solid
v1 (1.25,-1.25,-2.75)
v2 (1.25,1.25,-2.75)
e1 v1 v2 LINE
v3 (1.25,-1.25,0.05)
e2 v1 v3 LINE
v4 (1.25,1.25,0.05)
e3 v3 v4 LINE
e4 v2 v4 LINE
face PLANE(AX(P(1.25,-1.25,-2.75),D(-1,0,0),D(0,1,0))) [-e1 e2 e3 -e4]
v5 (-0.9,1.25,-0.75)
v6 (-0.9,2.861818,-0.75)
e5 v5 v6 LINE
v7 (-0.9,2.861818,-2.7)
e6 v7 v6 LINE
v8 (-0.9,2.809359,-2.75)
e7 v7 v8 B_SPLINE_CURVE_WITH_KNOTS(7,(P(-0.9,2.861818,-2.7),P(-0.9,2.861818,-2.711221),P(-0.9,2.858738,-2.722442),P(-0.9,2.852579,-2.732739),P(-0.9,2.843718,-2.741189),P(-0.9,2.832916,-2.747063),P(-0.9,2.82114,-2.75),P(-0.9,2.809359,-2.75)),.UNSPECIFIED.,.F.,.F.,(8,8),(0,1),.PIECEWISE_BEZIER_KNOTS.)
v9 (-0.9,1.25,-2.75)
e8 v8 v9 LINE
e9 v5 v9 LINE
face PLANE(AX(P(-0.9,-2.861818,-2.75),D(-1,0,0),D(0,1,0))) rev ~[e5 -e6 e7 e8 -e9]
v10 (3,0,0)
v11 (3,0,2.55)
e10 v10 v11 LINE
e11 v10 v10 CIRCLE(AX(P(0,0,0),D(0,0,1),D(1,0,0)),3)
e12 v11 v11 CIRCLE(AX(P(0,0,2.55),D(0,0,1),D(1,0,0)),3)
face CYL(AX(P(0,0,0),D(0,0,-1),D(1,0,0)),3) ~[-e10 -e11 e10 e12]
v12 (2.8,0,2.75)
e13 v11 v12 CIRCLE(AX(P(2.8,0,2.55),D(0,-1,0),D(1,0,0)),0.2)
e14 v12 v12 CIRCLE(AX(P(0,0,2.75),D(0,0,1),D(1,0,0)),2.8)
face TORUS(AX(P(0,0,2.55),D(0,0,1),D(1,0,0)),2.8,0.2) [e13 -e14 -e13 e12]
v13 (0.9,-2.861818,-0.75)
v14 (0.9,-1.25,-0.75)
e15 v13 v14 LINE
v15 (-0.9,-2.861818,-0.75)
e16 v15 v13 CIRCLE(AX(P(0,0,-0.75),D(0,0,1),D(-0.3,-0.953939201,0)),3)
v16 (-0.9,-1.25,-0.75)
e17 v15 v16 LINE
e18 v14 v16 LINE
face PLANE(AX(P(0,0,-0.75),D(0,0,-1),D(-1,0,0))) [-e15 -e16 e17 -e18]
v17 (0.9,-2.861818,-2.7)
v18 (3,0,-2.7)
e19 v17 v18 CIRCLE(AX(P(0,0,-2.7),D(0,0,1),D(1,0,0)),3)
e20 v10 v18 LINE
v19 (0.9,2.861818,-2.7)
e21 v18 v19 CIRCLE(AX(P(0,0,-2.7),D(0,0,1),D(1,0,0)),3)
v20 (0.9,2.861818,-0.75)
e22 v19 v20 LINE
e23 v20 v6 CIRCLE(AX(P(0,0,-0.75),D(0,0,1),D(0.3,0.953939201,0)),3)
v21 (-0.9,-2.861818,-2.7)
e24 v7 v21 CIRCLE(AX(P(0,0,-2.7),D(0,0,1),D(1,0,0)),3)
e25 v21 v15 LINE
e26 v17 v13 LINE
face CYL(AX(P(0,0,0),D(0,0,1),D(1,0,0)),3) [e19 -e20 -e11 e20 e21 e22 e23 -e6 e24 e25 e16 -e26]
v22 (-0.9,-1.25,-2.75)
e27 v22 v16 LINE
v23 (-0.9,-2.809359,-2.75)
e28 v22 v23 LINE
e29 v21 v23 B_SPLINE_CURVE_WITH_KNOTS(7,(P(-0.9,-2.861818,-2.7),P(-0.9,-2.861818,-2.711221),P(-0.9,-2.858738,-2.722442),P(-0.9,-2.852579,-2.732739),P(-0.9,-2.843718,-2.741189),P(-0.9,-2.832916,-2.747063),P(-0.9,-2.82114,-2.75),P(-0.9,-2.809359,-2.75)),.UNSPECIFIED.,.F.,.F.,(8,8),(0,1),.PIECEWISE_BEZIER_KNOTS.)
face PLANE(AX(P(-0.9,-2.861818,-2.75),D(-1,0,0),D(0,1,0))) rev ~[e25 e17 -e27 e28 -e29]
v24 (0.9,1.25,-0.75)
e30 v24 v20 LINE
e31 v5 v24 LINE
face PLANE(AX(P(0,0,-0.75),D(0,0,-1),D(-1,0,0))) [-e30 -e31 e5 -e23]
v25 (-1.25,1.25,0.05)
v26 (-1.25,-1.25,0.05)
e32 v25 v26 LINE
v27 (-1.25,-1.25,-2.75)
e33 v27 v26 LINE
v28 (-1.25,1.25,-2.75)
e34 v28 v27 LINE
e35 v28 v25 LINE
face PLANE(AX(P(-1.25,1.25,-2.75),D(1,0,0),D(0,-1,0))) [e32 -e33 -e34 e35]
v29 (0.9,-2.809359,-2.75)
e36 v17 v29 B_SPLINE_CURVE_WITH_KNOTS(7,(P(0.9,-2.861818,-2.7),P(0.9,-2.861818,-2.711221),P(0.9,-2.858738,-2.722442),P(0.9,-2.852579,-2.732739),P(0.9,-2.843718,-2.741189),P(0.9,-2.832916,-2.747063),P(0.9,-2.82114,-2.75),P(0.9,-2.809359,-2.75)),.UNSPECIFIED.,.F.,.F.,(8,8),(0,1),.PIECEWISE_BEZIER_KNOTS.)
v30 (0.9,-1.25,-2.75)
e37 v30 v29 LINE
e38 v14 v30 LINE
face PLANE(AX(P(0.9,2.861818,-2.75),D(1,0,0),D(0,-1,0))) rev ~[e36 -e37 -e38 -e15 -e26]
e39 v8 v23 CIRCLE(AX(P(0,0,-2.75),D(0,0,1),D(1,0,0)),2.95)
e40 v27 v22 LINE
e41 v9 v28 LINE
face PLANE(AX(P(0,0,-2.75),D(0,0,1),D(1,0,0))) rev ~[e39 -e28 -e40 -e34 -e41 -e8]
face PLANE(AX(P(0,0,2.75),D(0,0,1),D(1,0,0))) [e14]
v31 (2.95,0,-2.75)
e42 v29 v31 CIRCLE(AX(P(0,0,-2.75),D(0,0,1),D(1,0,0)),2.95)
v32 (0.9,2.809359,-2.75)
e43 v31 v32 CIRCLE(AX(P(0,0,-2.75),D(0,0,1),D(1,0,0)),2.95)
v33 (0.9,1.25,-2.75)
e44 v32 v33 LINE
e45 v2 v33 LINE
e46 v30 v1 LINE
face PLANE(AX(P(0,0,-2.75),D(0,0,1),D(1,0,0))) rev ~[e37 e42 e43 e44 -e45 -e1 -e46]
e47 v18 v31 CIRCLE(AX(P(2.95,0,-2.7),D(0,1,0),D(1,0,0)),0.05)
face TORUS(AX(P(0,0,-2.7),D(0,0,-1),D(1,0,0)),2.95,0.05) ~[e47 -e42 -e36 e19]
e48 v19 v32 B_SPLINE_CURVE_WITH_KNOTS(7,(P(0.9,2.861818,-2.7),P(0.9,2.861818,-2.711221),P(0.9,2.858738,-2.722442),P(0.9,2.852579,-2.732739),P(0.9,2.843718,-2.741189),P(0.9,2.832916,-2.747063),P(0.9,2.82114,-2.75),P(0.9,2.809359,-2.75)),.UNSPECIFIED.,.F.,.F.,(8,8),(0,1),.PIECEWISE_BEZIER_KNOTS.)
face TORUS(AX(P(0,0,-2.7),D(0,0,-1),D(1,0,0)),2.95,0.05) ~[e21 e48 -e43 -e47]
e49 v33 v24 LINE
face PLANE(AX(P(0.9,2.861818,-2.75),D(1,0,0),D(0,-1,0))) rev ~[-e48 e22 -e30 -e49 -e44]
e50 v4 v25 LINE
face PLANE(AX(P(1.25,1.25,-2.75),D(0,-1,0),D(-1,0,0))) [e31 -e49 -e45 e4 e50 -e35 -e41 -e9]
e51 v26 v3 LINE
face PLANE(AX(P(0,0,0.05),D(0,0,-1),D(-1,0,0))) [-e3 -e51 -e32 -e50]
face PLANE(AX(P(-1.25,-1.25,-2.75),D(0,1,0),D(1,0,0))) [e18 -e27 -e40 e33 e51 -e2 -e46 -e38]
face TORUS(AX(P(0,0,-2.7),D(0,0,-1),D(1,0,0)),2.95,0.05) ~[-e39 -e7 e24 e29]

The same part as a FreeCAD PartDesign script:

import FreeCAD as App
import Part
import Sketcher
from FreeCAD import Vector
Q = App.Units.Quantity


def edges_at(feature, points):
    """Names of the edges that pass closest to the given points."""
    edges = feature.Shape.Edges
    near = lambda p: min(range(len(edges)), key=lambda i: edges[i].distToShape(Part.Vertex(*p))[0])
    return sorted({f"Edge{near(p) + 1}" for p in points})

doc = App.newDocument("Part")
params = doc.addObject("Spreadsheet::Sheet", "Params")
for row, (alias, value) in enumerate([
    ("sketch1_diameter", "6 mm"),
    ("pad1_length", "5.5 mm"),
    ("fillet_radius", "0.2 mm"),
    ("fillet2_radius", "0.05 mm"),
    ("sketch2_width", "2.5 mm"),
    ("pocket1_length", "2.8 mm"),
    ("sketch3_width", "1.8 mm"),
    ("sketch3_height", "6 mm"),
    ("pocket2_length", "2 mm"),
], start=1):
    params.set(f"A{row}", alias)
    params.set(f"B{row}", "=" + value)
    params.setAlias(f"B{row}", alias)

body = doc.addObject("PartDesign::Body", "Body")

# Sketch on XY plane
sketch1 = body.newObject("Sketcher::SketchObject", "Sketch")
sketch1.AttachmentSupport = (doc.getObject("XY_Plane"), [""])
sketch1.MapMode = "FlatFace"
sketch1.addGeometry(Part.Circle(Vector(0, 0, 0), Vector(0, 0, 1), 3), False)
sketch1.addConstraint(Sketcher.Constraint("Coincident", 0, 3, -1, 1))
sketch1.addConstraint(Sketcher.Constraint("Diameter", 0, Q("6 mm")))
sketch1.setExpression("Constraints[1]", "Params.sketch1_diameter")
pad1 = body.newObject("PartDesign::Pad", "Pad")
pad1.Profile = sketch1
pad1.setExpression("Length", "Params.pad1_length")
pad1.Midplane = True
doc.recompute()

fillet = body.newObject("PartDesign::Fillet", "Fillet")
fillet.Base = (pad1, edges_at(pad1, [(-3, 0, 2.75)]))
fillet.setExpression("Radius", "Params.fillet_radius")
doc.recompute()

fillet2 = body.newObject("PartDesign::Fillet", "Fillet001")
fillet2.Base = (fillet, edges_at(fillet, [(-3, 0, -2.75)]))
fillet2.setExpression("Radius", "Params.fillet2_radius")

# Sketch on XY plane
sketch2 = body.newObject("Sketcher::SketchObject", "Sketch001")
sketch2.AttachmentSupport = (doc.getObject("XY_Plane"), [""])
sketch2.MapMode = "FlatFace"
sketch2.AttachmentOffset = App.Placement(Vector(0, 0, -2.75), App.Rotation())
sketch2.addGeometry(Part.LineSegment(Vector(1.2, -1.2, 0), Vector(-1.2, -1.2, 0)), False)
sketch2.addGeometry(Part.LineSegment(Vector(-1.2, -1.2, 0), Vector(-1.2, 1.2, 0)), False)
sketch2.addGeometry(Part.LineSegment(Vector(-1.2, 1.2, 0), Vector(1.2, 1.2, 0)), False)
sketch2.addGeometry(Part.LineSegment(Vector(1.2, 1.2, 0), Vector(1.2, -1.2, 0)), False)
sketch2.addConstraint(Sketcher.Constraint("Coincident", 0, 2, 1, 1))
sketch2.addConstraint(Sketcher.Constraint("Coincident", 1, 2, 2, 1))
sketch2.addConstraint(Sketcher.Constraint("Coincident", 2, 2, 3, 1))
sketch2.addConstraint(Sketcher.Constraint("Coincident", 3, 2, 0, 1))
sketch2.addConstraint(Sketcher.Constraint("Horizontal", 0))
sketch2.addConstraint(Sketcher.Constraint("Vertical", 1))
sketch2.addConstraint(Sketcher.Constraint("Horizontal", 2))
sketch2.addConstraint(Sketcher.Constraint("Vertical", 3))
sketch2.addConstraint(Sketcher.Constraint("Symmetric", 0, 2, 2, 2, -1, 1))
sketch2.addConstraint(Sketcher.Constraint("Equal", 2, 1))
sketch2.addConstraint(Sketcher.Constraint("DistanceX", 0, 2, 0, 1, Q("2.5 mm")))
sketch2.setExpression("Constraints[10]", "Params.sketch2_width")
pocket1 = body.newObject("PartDesign::Pocket", "Pocket")
pocket1.Profile = sketch2
pocket1.setExpression("Length", "Params.pocket1_length")
pocket1.Reversed = True

# Sketch on XY plane
sketch3 = body.newObject("Sketcher::SketchObject", "Sketch002")
sketch3.AttachmentSupport = (doc.getObject("XY_Plane"), [""])
sketch3.MapMode = "FlatFace"
sketch3.AttachmentOffset = App.Placement(Vector(0, 0, -2.75), App.Rotation())
sketch3.addGeometry(Part.LineSegment(Vector(-0.9, 3, 0), Vector(0.9, 3, 0)), False)
sketch3.addGeometry(Part.LineSegment(Vector(0.9, 3, 0), Vector(0.9, -3, 0)), False)
sketch3.addGeometry(Part.LineSegment(Vector(0.9, -3, 0), Vector(-0.9, -3, 0)), False)
sketch3.addGeometry(Part.LineSegment(Vector(-0.9, -3, 0), Vector(-0.9, 3, 0)), False)
sketch3.addConstraint(Sketcher.Constraint("Coincident", 0, 2, 1, 1))
sketch3.addConstraint(Sketcher.Constraint("Coincident", 1, 2, 2, 1))
sketch3.addConstraint(Sketcher.Constraint("Coincident", 2, 2, 3, 1))
sketch3.addConstraint(Sketcher.Constraint("Coincident", 3, 2, 0, 1))
sketch3.addConstraint(Sketcher.Constraint("Horizontal", 0))
sketch3.addConstraint(Sketcher.Constraint("Vertical", 1))
sketch3.addConstraint(Sketcher.Constraint("Horizontal", 2))
sketch3.addConstraint(Sketcher.Constraint("Vertical", 3))
sketch3.addConstraint(Sketcher.Constraint("Symmetric", 0, 2, 2, 2, -1, 1))
sketch3.addConstraint(Sketcher.Constraint("DistanceX", 0, 1, 0, 2, Q("1.8 mm")))
sketch3.addConstraint(Sketcher.Constraint("DistanceY", 1, 2, 1, 1, Q("6 mm")))
sketch3.setExpression("Constraints[9]", "Params.sketch3_width")
sketch3.setExpression("Constraints[10]", "Params.sketch3_height")
pocket2 = body.newObject("PartDesign::Pocket", "Pocket001")
pocket2.Profile = sketch3
pocket2.setExpression("Length", "Params.pocket2_length")
pocket2.Reversed = True

doc.recompute()
